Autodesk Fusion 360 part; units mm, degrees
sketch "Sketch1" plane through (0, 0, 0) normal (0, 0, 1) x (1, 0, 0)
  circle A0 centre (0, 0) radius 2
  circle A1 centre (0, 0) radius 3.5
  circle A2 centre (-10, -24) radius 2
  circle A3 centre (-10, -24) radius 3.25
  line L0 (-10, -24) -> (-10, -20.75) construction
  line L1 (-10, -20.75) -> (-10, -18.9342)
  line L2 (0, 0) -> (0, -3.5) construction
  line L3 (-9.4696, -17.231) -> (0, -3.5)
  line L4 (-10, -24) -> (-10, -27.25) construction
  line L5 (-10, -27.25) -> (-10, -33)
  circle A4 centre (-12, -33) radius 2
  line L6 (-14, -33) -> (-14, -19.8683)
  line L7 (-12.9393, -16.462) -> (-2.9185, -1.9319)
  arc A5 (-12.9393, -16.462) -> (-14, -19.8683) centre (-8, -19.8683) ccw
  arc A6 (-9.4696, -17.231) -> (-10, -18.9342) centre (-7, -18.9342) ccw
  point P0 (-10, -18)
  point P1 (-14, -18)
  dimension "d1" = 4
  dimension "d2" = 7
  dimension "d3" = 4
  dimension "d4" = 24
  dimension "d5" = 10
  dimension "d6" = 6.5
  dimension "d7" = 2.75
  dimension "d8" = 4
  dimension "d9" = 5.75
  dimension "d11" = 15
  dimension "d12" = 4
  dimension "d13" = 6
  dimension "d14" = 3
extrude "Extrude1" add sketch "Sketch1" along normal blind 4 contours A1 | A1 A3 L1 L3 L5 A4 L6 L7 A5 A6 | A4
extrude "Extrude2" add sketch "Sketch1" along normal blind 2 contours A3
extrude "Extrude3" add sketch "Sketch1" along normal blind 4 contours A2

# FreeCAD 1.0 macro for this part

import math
import FreeCAD as App
import Part
import Sketcher
Q = App.Units.Quantity

doc = App.newDocument("Part")
params = doc.addObject("Spreadsheet::Sheet", "Params")
for row, (alias, value) in enumerate([
    ("sketch1_diameter", "4 mm"),
    ("sketch1_radius", "6 mm"),
    ("sketch1_radius2", "3 mm"),
    ("sketch1_radius3", "3.5 mm"),
    ("sketch1_radius4", "3.25 mm"),
    ("pad1_length", "4 mm"),
    ("sketch2_diameter", "4 mm"),
    ("sketch2_diameter2", "6.5 mm"),
    ("pad2_length", "2 mm"),
    ("sketch3_diameter", "4 mm"),
    ("pad3_length", "4 mm"),
], start=1):
    params.set(f"A{row}", alias)
    params.set(f"B{row}", "=" + value)
    params.setAlias(f"B{row}", alias)

body = doc.addObject("PartDesign::Body", "Body")

# Sketch on XY plane
sketch1 = body.newObject("Sketcher::SketchObject", "Sketch")
sketch1.AttachmentSupport = (doc.getObject("XY_Plane"), [""])
sketch1.MapMode = "FlatFace"
sketch1.addGeometry([
    Part.ArcOfCircle(Part.Circle(App.Vector(0, 0, 0), App.Vector(0, 0, 1), 3.5), math.radians(-90), math.radians(214)),  # 0
    Part.LineSegment(App.Vector(-2.9, -1.9, 0), App.Vector(-12.9, -16.5, 0)),  # 1
    Part.ArcOfCircle(Part.Circle(App.Vector(-8, -19.9, 0), App.Vector(0, 0, 1), 6), math.radians(145), math.radians(180)),  # 2
    Part.LineSegment(App.Vector(-14, -19.9, 0), App.Vector(-14, -33, 0)),  # 3
    Part.ArcOfCircle(Part.Circle(App.Vector(-12, -33, 0), App.Vector(0, 0, 1), 2), math.radians(180), math.radians(360)),  # 4
    Part.LineSegment(App.Vector(-10, -33, 0), App.Vector(-10, -27.2, 0)),  # 5
    Part.ArcOfCircle(Part.Circle(App.Vector(-10, -24, 0), App.Vector(0, 0, 1), 3.2), math.radians(90), math.radians(270)),  # 6
    Part.LineSegment(App.Vector(-10, -20.8, 0), App.Vector(-10, -18.9, 0)),  # 7
    Part.ArcOfCircle(Part.Circle(App.Vector(-7, -18.9, 0), App.Vector(0, 0, 1), 3), math.radians(145), math.radians(180)),  # 8
    Part.LineSegment(App.Vector(-9.5, -17.2, 0), App.Vector(0, -3.5, 0)),  # 9
    Part.Circle(App.Vector(0, 0, 0), App.Vector(0, 0, 1), 2),  # 10
], False)
sketch1.addConstraint([
    Sketcher.Constraint("Coincident", 0, 2, 1, 1),
    Sketcher.Constraint("Tangent", 1, 2, 2, 1),
    Sketcher.Constraint("Tangent", 2, 2, 3, 1),
    Sketcher.Constraint("Tangent", 3, 2, 4, 1),
    Sketcher.Constraint("Tangent", 4, 2, 5, 1),
    Sketcher.Constraint("Coincident", 5, 2, 6, 2),
    Sketcher.Constraint("Coincident", 6, 1, 7, 1),
    Sketcher.Constraint("Tangent", 7, 2, 8, 2),
    Sketcher.Constraint("Tangent", 8, 1, 9, 1),
    Sketcher.Constraint("Coincident", 9, 2, 0, 1),
    Sketcher.Constraint("Vertical", 3),
    Sketcher.Constraint("Vertical", 5),
    Sketcher.Constraint("Vertical", 7),
    Sketcher.Constraint("Coincident", 0, 3, -1, 1),
    Sketcher.Constraint("Coincident", 10, 3, -1, 1),
    Sketcher.Constraint("Equal", 4, 10),
    Sketcher.Constraint("PointOnObject", 9, 2, -2),
    Sketcher.Constraint("Parallel", 1, 9),
    Sketcher.Constraint("Vertical", 6, 3, 4, 2),
    Sketcher.Constraint("Vertical", 5, 2, 6, 1),
    Sketcher.Constraint("Diameter", 10, Q("4 mm")),
    Sketcher.Constraint("Radius", 2, Q("6 mm")),
    Sketcher.Constraint("Radius", 8, Q("3 mm")),
    Sketcher.Constraint("Radius", 0, Q("3.5 mm")),
    Sketcher.Constraint("Radius", 6, Q("3.25 mm")),
    Sketcher.Constraint("DistanceX", 6, 3, -1, 1, Q("10 mm")),
    Sketcher.Constraint("DistanceY", 6, 3, -1, 1, Q("24 mm")),
    Sketcher.Constraint("DistanceY", 5, 1, 5, 2, Q("5.75 mm")),
    Sketcher.Constraint("DistanceY", 1, 2, 0, 2, Q("14.53 mm")),
    Sketcher.Constraint("DistanceY", 3, 2, 3, 1, Q("13.1317 mm")),
])
sketch1.setExpression("Constraints[20]", "Params.sketch1_diameter")
sketch1.setExpression("Constraints[21]", "Params.sketch1_radius")
sketch1.setExpression("Constraints[22]", "Params.sketch1_radius2")
sketch1.setExpression("Constraints[23]", "Params.sketch1_radius3")
sketch1.setExpression("Constraints[24]", "Params.sketch1_radius4")
pad1 = body.newObject("PartDesign::Pad", "Pad")
pad1.Profile = sketch1
pad1.setExpression("Length", "Params.pad1_length")

# Sketch on XY plane
sketch2 = body.newObject("Sketcher::SketchObject", "Sketch001")
sketch2.AttachmentSupport = (doc.getObject("XY_Plane"), [""])
sketch2.MapMode = "FlatFace"
sketch2.addGeometry([
    Part.Circle(App.Vector(-10, -24, 0), App.Vector(0, 0, 1), 3.2),
    Part.Circle(App.Vector(-10, -24, 0), App.Vector(0, 0, 1), 2),
], False)
sketch2.addConstraint([
    Sketcher.Constraint("Coincident", 1, 3, 0, 3),
    Sketcher.Constraint("Diameter", 1, Q("4 mm")),
    Sketcher.Constraint("Diameter", 0, Q("6.5 mm")),
    Sketcher.Constraint("DistanceX", 0, 3, -1, 1, Q("10 mm")),
    Sketcher.Constraint("DistanceY", 0, 3, -1, 1, Q("24 mm")),
])
sketch2.setExpression("Constraints[1]", "Params.sketch2_diameter")
sketch2.setExpression("Constraints[2]", "Params.sketch2_diameter2")
pad2 = body.newObject("PartDesign::Pad", "Pad001")
pad2.Profile = sketch2
pad2.setExpression("Length", "Params.pad2_length")

# Sketch on XY plane
sketch3 = body.newObject("Sketcher::SketchObject", "Sketch002")
sketch3.AttachmentSupport = (doc.getObject("XY_Plane"), [""])
sketch3.MapMode = "FlatFace"
sketch3.addGeometry(Part.Circle(App.Vector(-10, -24, 0), App.Vector(0, 0, 1), 2), False)
sketch3.addConstraint([
    Sketcher.Constraint("Diameter", 0, Q("4 mm")),
    Sketcher.Constraint("DistanceX", 0, 3, -1, 1, Q("10 mm")),
    Sketcher.Constraint("DistanceY", 0, 3, -1, 1, Q("24 mm")),
])
sketch3.setExpression("Constraints[0]", "Params.sketch3_diameter")
pad3 = body.newObject("PartDesign::Pad", "Pad002")
pad3.Profile = sketch3
pad3.setExpression("Length", "Params.pad3_length")

doc.recompute()
